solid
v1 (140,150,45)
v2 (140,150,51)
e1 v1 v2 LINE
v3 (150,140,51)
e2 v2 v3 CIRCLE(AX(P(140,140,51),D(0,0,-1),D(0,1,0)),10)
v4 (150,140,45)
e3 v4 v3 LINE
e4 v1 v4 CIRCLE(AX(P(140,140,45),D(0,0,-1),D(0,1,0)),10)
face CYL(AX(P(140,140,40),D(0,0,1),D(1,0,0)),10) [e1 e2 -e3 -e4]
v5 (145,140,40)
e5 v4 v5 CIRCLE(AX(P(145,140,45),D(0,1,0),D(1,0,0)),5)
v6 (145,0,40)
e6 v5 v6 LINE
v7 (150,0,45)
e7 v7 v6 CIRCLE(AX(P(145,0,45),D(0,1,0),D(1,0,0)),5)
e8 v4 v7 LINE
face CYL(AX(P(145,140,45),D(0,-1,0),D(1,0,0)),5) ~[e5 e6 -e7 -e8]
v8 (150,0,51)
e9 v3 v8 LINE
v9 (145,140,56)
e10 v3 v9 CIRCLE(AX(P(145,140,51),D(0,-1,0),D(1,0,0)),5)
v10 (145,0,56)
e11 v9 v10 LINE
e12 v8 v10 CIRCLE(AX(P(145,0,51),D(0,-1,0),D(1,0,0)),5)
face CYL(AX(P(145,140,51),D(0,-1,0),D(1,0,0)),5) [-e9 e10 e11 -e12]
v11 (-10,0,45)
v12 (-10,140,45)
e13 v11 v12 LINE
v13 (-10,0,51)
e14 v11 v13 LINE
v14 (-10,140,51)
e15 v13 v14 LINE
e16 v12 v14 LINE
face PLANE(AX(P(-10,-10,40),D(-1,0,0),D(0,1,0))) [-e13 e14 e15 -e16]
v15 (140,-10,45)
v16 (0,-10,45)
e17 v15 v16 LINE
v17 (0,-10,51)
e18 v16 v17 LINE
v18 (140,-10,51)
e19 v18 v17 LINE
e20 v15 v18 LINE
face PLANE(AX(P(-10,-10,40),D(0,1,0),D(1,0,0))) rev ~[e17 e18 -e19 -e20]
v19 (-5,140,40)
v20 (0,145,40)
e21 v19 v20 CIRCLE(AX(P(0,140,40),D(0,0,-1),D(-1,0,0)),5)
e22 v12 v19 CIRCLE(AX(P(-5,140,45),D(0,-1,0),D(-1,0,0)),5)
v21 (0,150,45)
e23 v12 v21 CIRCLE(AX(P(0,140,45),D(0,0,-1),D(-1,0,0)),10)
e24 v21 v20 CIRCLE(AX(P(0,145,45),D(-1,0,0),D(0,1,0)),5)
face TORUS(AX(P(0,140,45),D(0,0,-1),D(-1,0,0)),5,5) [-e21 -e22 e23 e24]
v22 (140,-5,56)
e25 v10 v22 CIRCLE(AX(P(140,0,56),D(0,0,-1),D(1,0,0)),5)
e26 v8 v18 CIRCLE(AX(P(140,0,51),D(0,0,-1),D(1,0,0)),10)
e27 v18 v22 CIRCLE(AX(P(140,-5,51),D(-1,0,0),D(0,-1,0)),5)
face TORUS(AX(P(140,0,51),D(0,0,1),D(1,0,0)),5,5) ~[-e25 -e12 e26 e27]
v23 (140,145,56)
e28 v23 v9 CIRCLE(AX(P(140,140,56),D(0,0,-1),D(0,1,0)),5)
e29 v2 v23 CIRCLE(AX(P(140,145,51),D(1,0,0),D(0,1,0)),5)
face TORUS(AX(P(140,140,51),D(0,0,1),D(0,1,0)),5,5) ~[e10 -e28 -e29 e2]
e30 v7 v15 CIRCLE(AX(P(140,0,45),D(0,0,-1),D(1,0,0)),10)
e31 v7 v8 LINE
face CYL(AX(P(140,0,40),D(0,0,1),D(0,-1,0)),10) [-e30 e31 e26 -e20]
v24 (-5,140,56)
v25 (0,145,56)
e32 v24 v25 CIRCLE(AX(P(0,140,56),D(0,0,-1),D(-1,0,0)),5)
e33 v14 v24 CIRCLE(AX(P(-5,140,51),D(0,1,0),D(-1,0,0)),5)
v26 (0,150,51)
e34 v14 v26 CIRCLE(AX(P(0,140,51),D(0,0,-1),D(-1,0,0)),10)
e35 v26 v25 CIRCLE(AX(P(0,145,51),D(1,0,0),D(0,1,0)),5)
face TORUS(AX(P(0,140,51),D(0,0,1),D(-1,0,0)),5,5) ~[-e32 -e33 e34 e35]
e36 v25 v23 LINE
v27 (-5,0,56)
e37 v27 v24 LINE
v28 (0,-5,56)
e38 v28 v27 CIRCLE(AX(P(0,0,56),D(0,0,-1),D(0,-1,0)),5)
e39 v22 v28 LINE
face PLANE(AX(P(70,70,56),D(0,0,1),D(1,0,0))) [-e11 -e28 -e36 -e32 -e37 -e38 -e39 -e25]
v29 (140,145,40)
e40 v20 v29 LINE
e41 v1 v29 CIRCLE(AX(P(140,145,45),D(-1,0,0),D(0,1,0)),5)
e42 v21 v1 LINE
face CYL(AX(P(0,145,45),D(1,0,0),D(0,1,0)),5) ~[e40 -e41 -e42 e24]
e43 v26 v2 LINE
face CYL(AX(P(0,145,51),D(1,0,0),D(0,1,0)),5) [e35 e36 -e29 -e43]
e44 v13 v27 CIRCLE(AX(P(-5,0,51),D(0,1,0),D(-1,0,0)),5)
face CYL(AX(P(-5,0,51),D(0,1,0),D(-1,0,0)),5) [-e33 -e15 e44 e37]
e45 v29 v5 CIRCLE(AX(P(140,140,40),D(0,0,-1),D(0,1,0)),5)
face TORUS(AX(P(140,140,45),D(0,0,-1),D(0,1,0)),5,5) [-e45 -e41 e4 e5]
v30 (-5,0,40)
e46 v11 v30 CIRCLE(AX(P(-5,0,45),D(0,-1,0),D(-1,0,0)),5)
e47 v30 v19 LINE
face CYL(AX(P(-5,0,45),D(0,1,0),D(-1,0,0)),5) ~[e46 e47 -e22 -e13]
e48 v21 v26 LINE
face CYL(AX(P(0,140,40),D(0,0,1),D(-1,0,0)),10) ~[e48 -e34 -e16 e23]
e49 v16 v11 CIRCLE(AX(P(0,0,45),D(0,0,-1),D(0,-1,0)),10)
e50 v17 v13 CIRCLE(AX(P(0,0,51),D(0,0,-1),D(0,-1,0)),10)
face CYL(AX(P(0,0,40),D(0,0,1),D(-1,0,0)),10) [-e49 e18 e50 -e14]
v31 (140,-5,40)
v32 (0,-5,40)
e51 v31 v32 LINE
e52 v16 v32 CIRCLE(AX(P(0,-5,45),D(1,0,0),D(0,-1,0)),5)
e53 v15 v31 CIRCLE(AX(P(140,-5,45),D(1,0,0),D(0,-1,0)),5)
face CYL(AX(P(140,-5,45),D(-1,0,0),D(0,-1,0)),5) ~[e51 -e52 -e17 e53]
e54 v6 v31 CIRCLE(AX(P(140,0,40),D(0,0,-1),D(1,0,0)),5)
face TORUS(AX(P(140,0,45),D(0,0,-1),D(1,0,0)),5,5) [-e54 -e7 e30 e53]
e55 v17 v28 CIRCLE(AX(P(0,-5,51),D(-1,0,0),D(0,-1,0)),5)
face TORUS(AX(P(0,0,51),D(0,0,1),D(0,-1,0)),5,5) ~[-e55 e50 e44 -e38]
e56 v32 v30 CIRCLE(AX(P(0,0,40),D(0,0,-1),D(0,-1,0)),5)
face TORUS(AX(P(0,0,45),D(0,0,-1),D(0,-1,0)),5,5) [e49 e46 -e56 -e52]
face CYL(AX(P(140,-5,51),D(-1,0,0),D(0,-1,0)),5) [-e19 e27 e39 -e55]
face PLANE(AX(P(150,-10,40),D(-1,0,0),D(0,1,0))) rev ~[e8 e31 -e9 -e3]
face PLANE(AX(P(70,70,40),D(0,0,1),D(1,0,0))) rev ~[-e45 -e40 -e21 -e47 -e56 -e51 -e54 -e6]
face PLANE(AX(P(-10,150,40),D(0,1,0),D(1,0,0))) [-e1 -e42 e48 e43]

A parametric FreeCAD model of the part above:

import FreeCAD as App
import Part
import Sketcher
Q = App.Units.Quantity


def edges_at(feature, points):
    """Names of the edges that pass closest to the given points."""
    edges = feature.Shape.Edges
    near = lambda p: min(range(len(edges)), key=lambda i: edges[i].distToShape(Part.Vertex(*p))[0])
    return sorted({f"Edge{near(p) + 1}" for p in points})


def add_polygon(sketch, points):
    """Adds a closed chain of lines whose ends are joined by coincident constraints."""
    first, n = sketch.GeometryCount, len(points)
    for a, b in zip(points, points[1:] + points[:1]):
        sketch.addGeometry(Part.LineSegment(App.Vector(*a, 0), App.Vector(*b, 0)), False)
    for i in range(n):
        sketch.addConstraint(Sketcher.Constraint("Coincident", first + i, 2, first + (i + 1) % n, 1))

doc = App.newDocument("Part")
body = doc.addObject("PartDesign::Body", "Body")

# Sketch on XY plane
sketch1 = doc.addObject("Sketcher::SketchObject", "Sketch")
body.addObject(sketch1)
sketch1.AttachmentSupport = (doc.XY_Plane, [""])
sketch1.MapMode = "FlatFace"
add_polygon(sketch1, [(0, 160), (0, 0), (160, 0), (160, 160)])  # lines 0-3
sketch1.addConstraint([
    Sketcher.Constraint("Vertical", 0),
    Sketcher.Constraint("Horizontal", 1),
    Sketcher.Constraint("Vertical", 2),
    Sketcher.Constraint("Horizontal", 3),
    Sketcher.Constraint("Coincident", 0, 2, -1, 1),
    Sketcher.Constraint("Equal", 3, 0),
    Sketcher.Constraint("DistanceX", 1, 1, 1, 2, Q("160 mm")),
])
pad1 = doc.addObject("PartDesign::Pad", "Pad")
body.addObject(pad1)
pad1.Profile = sketch1
pad1.Length = 16
doc.recompute()

fillet = doc.addObject("PartDesign::Fillet", "Fillet")
body.addObject(fillet)
fillet.Base = (pad1, edges_at(pad1, [
    (0, 0, 8),
    (0, 160, 8),
    (160, 0, 8),
    (160, 160, 8),
]))
fillet.Radius = 10
doc.recompute()

fillet2 = doc.addObject("PartDesign::Fillet", "Fillet001")
body.addObject(fillet2)
fillet2.Base = (fillet, edges_at(fillet, [
    (0, 80, 16),
    (2.929, 2.929, 16),
    (2.929, 157.071, 16),
    (80, 0, 16),
    (80, 160, 16),
    (157.071, 2.929, 16),
    (157.071, 157.071, 16),
    (160, 80, 16),
]))
fillet2.Radius = 5
doc.recompute()

fillet3 = doc.addObject("PartDesign::Fillet", "Fillet002")
body.addObject(fillet3)
fillet3.Base = (fillet2, edges_at(fillet2, [
    (0, 80, 0),
    (2.929, 2.929, 0),
    (2.929, 157.071, 0),
    (80, 0, 0),
    (80, 160, 0),
    (157.071, 2.929, 0),
    (157.071, 157.071, 0),
    (160, 80, 0),
]))
fillet3.Radius = 5
body2 = doc.addObject("PartDesign::Body", "Body001")
doc.recompute()

body.Placement = App.Placement(App.Vector(-10, -10, 40), App.Rotation(App.Vector(0, 0, 1), 0))
boolean = doc.addObject("PartDesign::Boolean", "Boolean")
body2.addObject(boolean)
boolean.Type = "Fuse"
boolean.addObjects([body])

doc.recompute()
